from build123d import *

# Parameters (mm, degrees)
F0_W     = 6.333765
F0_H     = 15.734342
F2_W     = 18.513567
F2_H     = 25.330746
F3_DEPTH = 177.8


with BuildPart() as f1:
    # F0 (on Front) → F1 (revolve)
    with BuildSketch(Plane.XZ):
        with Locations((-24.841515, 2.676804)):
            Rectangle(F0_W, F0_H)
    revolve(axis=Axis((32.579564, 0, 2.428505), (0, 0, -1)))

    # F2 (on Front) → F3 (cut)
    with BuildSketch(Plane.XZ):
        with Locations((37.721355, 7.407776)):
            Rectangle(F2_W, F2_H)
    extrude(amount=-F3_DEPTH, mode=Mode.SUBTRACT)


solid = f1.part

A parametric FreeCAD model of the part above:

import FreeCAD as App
import Part
import Sketcher

V = App.Vector
Q = App.Units.Quantity

doc = App.newDocument("Part")
body = doc.addObject("PartDesign::Body", "Body")

# Sketch on XZ plane
sketch1 = body.newObject("Sketcher::SketchObject", "Sketch")
sketch1.AttachmentSupport = (doc.getObject("XZ_Plane"), [""])
sketch1.MapMode = "FlatFace"
sketch1.addGeometry(Part.LineSegment(V(-28, 11, 0), V(-28, -5, 0)), False)
sketch1.addGeometry(Part.LineSegment(V(-28, -5, 0), V(-22, -5, 0)), False)
sketch1.addGeometry(Part.LineSegment(V(-22, -5, 0), V(-22, 11, 0)), False)
sketch1.addGeometry(Part.LineSegment(V(-22, 11, 0), V(-28, 11, 0)), False)
sketch1.addGeometry(Part.LineSegment(V(33, 11, 0), V(33, -5, 0)), True)  # axis
sketch1.addConstraint(Sketcher.Constraint("Coincident", 0, 2, 1, 1))
sketch1.addConstraint(Sketcher.Constraint("Coincident", 1, 2, 2, 1))
sketch1.addConstraint(Sketcher.Constraint("Coincident", 2, 2, 3, 1))
sketch1.addConstraint(Sketcher.Constraint("Coincident", 3, 2, 0, 1))
sketch1.addConstraint(Sketcher.Constraint("Vertical", 0))
sketch1.addConstraint(Sketcher.Constraint("Horizontal", 1))
sketch1.addConstraint(Sketcher.Constraint("Vertical", 2))
sketch1.addConstraint(Sketcher.Constraint("Horizontal", 3))
sketch1.addConstraint(Sketcher.Constraint("Vertical", 4))
sketch1.addConstraint(Sketcher.Constraint("Horizontal", 3, 2, 4, 1))
sketch1.addConstraint(Sketcher.Constraint("Horizontal", 1, 2, 4, 2))
sketch1.addConstraint(Sketcher.Constraint("DistanceX", 1, 1, 1, 2, Q("6.333765 mm")))
sketch1.addConstraint(Sketcher.Constraint("DistanceY", 0, 2, 0, 1, Q("15.734342 mm")))
sketch1.addConstraint(Sketcher.Constraint("DistanceX", 3, 2, 4, 1, Q("60.587961 mm")))
sketch1.addConstraint(Sketcher.Constraint("DistanceX", 0, 2, -1, 1, Q("28.008398 mm")))
sketch1.addConstraint(Sketcher.Constraint("DistanceY", 0, 2, -1, 1, Q("5.190367 mm")))
revolution = body.newObject("PartDesign::Revolution", "Revolution")
revolution.Profile = sketch1
revolution.ReferenceAxis = (sketch1, ["Axis0"])
revolution.Angle = 360

# Sketch on XZ plane
sketch2 = body.newObject("Sketcher::SketchObject", "Sketch001")
sketch2.AttachmentSupport = (doc.getObject("XZ_Plane"), [""])
sketch2.MapMode = "FlatFace"
sketch2.addGeometry(Part.LineSegment(V(28, 20, 0), V(28, -5, 0)), False)
sketch2.addGeometry(Part.LineSegment(V(28, -5, 0), V(47, -5, 0)), False)
sketch2.addGeometry(Part.LineSegment(V(47, -5, 0), V(47, 20, 0)), False)
sketch2.addGeometry(Part.LineSegment(V(47, 20, 0), V(28, 20, 0)), False)
sketch2.addConstraint(Sketcher.Constraint("Coincident", 0, 2, 1, 1))
sketch2.addConstraint(Sketcher.Constraint("Coincident", 1, 2, 2, 1))
sketch2.addConstraint(Sketcher.Constraint("Coincident", 2, 2, 3, 1))
sketch2.addConstraint(Sketcher.Constraint("Coincident", 3, 2, 0, 1))
sketch2.addConstraint(Sketcher.Constraint("Vertical", 0))
sketch2.addConstraint(Sketcher.Constraint("Horizontal", 1))
sketch2.addConstraint(Sketcher.Constraint("Vertical", 2))
sketch2.addConstraint(Sketcher.Constraint("Horizontal", 3))
sketch2.addConstraint(Sketcher.Constraint("DistanceX", 1, 1, 1, 2, Q("18.513567 mm")))
sketch2.addConstraint(Sketcher.Constraint("DistanceY", 0, 2, 0, 1, Q("25.330746 mm")))
sketch2.addConstraint(Sketcher.Constraint("DistanceX", -1, 1, 0, 2, Q("28.464572 mm")))
sketch2.addConstraint(Sketcher.Constraint("DistanceY", -1, 1, 2, 2, Q("20.073149 mm")))
pocket1 = body.newObject("PartDesign::Pocket", "Pocket")
pocket1.Profile = sketch2
pocket1.Length = Q("7 in")

doc.recompute()
